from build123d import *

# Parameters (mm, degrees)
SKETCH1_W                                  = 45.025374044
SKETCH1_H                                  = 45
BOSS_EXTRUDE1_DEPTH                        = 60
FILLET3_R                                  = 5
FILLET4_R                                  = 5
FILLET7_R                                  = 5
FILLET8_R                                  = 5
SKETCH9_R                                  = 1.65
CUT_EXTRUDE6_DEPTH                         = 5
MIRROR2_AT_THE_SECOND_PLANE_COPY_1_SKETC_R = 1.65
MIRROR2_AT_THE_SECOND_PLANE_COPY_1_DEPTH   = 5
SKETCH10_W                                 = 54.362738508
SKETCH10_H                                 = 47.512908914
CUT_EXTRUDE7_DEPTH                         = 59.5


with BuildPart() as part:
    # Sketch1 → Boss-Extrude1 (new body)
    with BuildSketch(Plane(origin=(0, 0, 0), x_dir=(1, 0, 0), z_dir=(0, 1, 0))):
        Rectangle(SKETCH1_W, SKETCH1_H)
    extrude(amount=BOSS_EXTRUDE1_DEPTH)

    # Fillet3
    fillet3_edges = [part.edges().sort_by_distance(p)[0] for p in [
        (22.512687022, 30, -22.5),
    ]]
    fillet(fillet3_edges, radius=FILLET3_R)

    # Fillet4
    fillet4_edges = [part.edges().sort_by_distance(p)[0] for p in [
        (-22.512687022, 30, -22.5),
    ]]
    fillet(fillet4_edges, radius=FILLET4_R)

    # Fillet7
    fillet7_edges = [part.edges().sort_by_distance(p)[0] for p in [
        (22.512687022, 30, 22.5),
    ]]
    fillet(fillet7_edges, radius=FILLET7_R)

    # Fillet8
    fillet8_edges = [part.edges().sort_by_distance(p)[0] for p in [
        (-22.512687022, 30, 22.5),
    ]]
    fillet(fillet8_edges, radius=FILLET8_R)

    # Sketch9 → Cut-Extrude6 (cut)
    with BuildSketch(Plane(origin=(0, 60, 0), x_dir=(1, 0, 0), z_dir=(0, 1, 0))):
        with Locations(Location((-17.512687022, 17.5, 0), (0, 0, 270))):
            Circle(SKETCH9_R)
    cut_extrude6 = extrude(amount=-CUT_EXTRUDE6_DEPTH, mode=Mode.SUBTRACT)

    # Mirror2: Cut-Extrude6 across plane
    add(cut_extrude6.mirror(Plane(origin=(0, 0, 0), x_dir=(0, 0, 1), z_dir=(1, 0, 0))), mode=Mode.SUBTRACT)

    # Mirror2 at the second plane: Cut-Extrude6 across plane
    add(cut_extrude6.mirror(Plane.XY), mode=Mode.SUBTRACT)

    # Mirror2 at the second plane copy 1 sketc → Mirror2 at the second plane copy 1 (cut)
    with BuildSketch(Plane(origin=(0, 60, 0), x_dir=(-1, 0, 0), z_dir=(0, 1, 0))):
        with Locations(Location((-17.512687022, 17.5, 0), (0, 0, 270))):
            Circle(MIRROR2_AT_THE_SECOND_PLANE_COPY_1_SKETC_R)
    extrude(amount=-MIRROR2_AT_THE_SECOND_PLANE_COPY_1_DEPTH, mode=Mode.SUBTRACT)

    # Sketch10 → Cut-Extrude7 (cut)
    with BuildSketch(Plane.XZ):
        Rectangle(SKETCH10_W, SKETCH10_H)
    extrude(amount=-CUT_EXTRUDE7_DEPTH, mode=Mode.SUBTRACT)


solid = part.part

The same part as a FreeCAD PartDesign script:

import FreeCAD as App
import Part
import Sketcher


def edges_at(feature, points):
    """Names of the edges that pass closest to the given points."""
    edges = feature.Shape.Edges
    near = lambda p: min(range(len(edges)), key=lambda i: edges[i].distToShape(Part.Vertex(*p))[0])
    return sorted({f"Edge{near(p) + 1}" for p in points})

doc = App.newDocument("Part")
body = doc.addObject("PartDesign::Body", "Body")

sketch1 = doc.addObject("Sketcher::SketchObject", "Sketch")
body.addObject(sketch1)
sketch1.AttachmentSupport = (doc.XZ_Plane, [""])
sketch1.MapMode = "FlatFace"
sketch1.addGeometry([
    Part.LineSegment(App.Vector(-23, -22, 0), App.Vector(-23, 22, 0)),
    Part.LineSegment(App.Vector(-23, 22, 0), App.Vector(23, 22, 0)),
    Part.LineSegment(App.Vector(23, 22, 0), App.Vector(23, -22, 0)),
    Part.LineSegment(App.Vector(23, -22, 0), App.Vector(-23, -22, 0)),
], False)
sketch1.addConstraint([
    Sketcher.Constraint("Coincident", 0, 2, 1, 1),
    Sketcher.Constraint("Coincident", 1, 2, 2, 1),
    Sketcher.Constraint("Coincident", 2, 2, 3, 1),
    Sketcher.Constraint("Coincident", 3, 2, 0, 1),
    Sketcher.Constraint("Vertical", 0),
    Sketcher.Constraint("Horizontal", 1),
    Sketcher.Constraint("Vertical", 2),
    Sketcher.Constraint("Horizontal", 3),
    Sketcher.Constraint("Symmetric", 0, 2, 2, 2, -1, 1),
    Sketcher.Constraint("DistanceY", 0, 1, 0, 2, 45.0),
    Sketcher.Constraint("DistanceX", 1, 1, 1, 2, 45.025374),
])
pad1 = doc.addObject("PartDesign::Pad", "Pad")
body.addObject(pad1)
pad1.Profile = sketch1
pad1.Length = 60
pad1.Reversed = True
doc.recompute()

fillet = doc.addObject("PartDesign::Fillet", "Fillet")
body.addObject(fillet)
fillet.Base = (pad1, edges_at(pad1, [(22.513, 30, -22.5)]))
fillet.Radius = 5
doc.recompute()

fillet2 = doc.addObject("PartDesign::Fillet", "Fillet001")
body.addObject(fillet2)
fillet2.Base = (fillet, edges_at(fillet, [(-22.513, 30, -22.5)]))
fillet2.Radius = 5
doc.recompute()

fillet3 = doc.addObject("PartDesign::Fillet", "Fillet002")
body.addObject(fillet3)
fillet3.Base = (fillet2, edges_at(fillet2, [(22.513, 30, 22.5)]))
fillet3.Radius = 5
doc.recompute()

fillet4 = doc.addObject("PartDesign::Fillet", "Fillet003")
body.addObject(fillet4)
fillet4.Base = (fillet3, edges_at(fillet3, [(-22.513, 30, 22.5)]))
fillet4.Radius = 5

sketch2 = doc.addObject("Sketcher::SketchObject", "Sketch001")
body.addObject(sketch2)
sketch2.AttachmentSupport = (doc.XZ_Plane, [""])
sketch2.MapMode = "FlatFace"
sketch2.AttachmentOffset = App.Placement(App.Vector(0, 0, -60), App.Rotation())
sketch2.addGeometry(Part.Circle(App.Vector(-17.5, -17.5, 0), App.Vector(0, 0, 1), 1.6), False)
sketch2.addConstraint([
    Sketcher.Constraint("Diameter", 0, 3.3),
    Sketcher.Constraint("DistanceY", 0, 3, -1, 1, 17.5),
    Sketcher.Constraint("DistanceX", 0, 3, -1, 1, 17.512687),
])
pocket1 = doc.addObject("PartDesign::Pocket", "Pocket")
body.addObject(pocket1)
pocket1.Profile = sketch2
pocket1.Length = 5
pocket1.Reversed = True
doc.recompute()

mirrored = doc.addObject("PartDesign::Mirrored", "Mirrored")
body.addObject(mirrored)
mirrored.Originals = [pocket1]
mirrored.MirrorPlane = (doc.YZ_Plane, [""])
body.Tip = mirrored
doc.recompute()

mirrored2 = doc.addObject("PartDesign::Mirrored", "Mirrored001")
body.addObject(mirrored2)
mirrored2.Originals = [pocket1]
mirrored2.MirrorPlane = (doc.XY_Plane, [""])
body.Tip = mirrored2

sketch3 = doc.addObject("Sketcher::SketchObject", "Sketch002")
body.addObject(sketch3)
sketch3.AttachmentSupport = (doc.XZ_Plane, [""])
sketch3.MapMode = "FlatFace"
sketch3.AttachmentOffset = App.Placement(App.Vector(0, 0, -60), App.Rotation())
sketch3.addGeometry(Part.Circle(App.Vector(17.5, 17.5, 0), App.Vector(0, 0, 1), 1.6), False)
sketch3.addConstraint([
    Sketcher.Constraint("Diameter", 0, 3.3),
    Sketcher.Constraint("DistanceY", -1, 1, 0, 3, 17.5),
    Sketcher.Constraint("DistanceX", -1, 1, 0, 3, 17.512687),
])
pocket2 = doc.addObject("PartDesign::Pocket", "Pocket001")
body.addObject(pocket2)
pocket2.Profile = sketch3
pocket2.Length = 5
pocket2.Reversed = True

sketch4 = doc.addObject("Sketcher::SketchObject", "Sketch003")
body.addObject(sketch4)
sketch4.AttachmentSupport = (doc.XZ_Plane, [""])
sketch4.MapMode = "FlatFace"
sketch4.addGeometry([
    Part.LineSegment(App.Vector(-27, 24, 0), App.Vector(-27, -24, 0)),
    Part.LineSegment(App.Vector(-27, -24, 0), App.Vector(27, -24, 0)),
    Part.LineSegment(App.Vector(27, -24, 0), App.Vector(27, 24, 0)),
    Part.LineSegment(App.Vector(27, 24, 0), App.Vector(-27, 24, 0)),
], False)
sketch4.addConstraint([
    Sketcher.Constraint("Coincident", 0, 2, 1, 1),
    Sketcher.Constraint("Coincident", 1, 2, 2, 1),
    Sketcher.Constraint("Coincident", 2, 2, 3, 1),
    Sketcher.Constraint("Coincident", 3, 2, 0, 1),
    Sketcher.Constraint("Vertical", 0),
    Sketcher.Constraint("Horizontal", 1),
    Sketcher.Constraint("Vertical", 2),
    Sketcher.Constraint("Horizontal", 3),
    Sketcher.Constraint("Symmetric", 0, 2, 2, 2, -1, 1),
    Sketcher.Constraint("DistanceX", 1, 1, 1, 2, 54.362739),
    Sketcher.Constraint("DistanceY", 0, 2, 0, 1, 47.512909),
])
pocket3 = doc.addObject("PartDesign::Pocket", "Pocket002")
body.addObject(pocket3)
pocket3.Profile = sketch4
pocket3.Length = 59.5

doc.recompute()
